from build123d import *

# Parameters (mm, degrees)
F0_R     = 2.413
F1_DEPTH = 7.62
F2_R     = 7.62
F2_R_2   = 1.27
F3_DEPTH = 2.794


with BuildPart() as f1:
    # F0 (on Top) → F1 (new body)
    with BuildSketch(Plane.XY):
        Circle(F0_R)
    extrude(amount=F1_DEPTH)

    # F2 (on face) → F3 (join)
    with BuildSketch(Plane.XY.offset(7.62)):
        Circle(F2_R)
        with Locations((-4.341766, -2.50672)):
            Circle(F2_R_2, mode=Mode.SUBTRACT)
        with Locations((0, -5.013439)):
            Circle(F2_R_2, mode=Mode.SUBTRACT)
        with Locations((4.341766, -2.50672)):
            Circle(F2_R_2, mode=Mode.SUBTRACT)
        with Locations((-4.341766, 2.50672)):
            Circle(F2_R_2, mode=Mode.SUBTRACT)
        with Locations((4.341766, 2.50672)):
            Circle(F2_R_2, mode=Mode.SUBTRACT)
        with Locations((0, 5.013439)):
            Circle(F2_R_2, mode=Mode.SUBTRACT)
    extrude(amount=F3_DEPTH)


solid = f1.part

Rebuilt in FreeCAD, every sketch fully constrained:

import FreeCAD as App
import Part
import Sketcher

V = App.Vector
Q = App.Units.Quantity

doc = App.newDocument("Part")
body = doc.addObject("PartDesign::Body", "Body")

# Sketch on XY plane
sketch1 = body.newObject("Sketcher::SketchObject", "Sketch")
sketch1.AttachmentSupport = (doc.getObject("XY_Plane"), [""])
sketch1.MapMode = "FlatFace"
sketch1.addGeometry(Part.Circle(V(0, 0, 0), V(0, 0, 1), 2.4), False)
sketch1.addConstraint(Sketcher.Constraint("Coincident", 0, 3, -1, 1))
sketch1.addConstraint(Sketcher.Constraint("Diameter", 0, Q("0.19 in")))
pad1 = body.newObject("PartDesign::Pad", "Pad")
pad1.Profile = sketch1
pad1.Length = Q("0.3 in")

# Sketch on XY plane
sketch2 = body.newObject("Sketcher::SketchObject", "Sketch001")
sketch2.AttachmentSupport = (doc.getObject("XY_Plane"), [""])
sketch2.MapMode = "FlatFace"
sketch2.AttachmentOffset = App.Placement(V(0, 0, 0.3 * 25.4), App.Rotation())
sketch2.addGeometry(Part.Circle(V(0, 0, 0), V(0, 0, 1), 7.6), False)
sketch2.addGeometry(Part.Circle(V(-4.3, -2.5, 0), V(0, 0, 1), 1.3), False)
sketch2.addGeometry(Part.Circle(V(0, -5, 0), V(0, 0, 1), 1.3), False)
sketch2.addGeometry(Part.Circle(V(4.3, -2.5, 0), V(0, 0, 1), 1.3), False)
sketch2.addGeometry(Part.Circle(V(-4.3, 2.5, 0), V(0, 0, 1), 1.3), False)
sketch2.addGeometry(Part.Circle(V(4.3, 2.5, 0), V(0, 0, 1), 1.3), False)
sketch2.addGeometry(Part.Circle(V(0, 5, 0), V(0, 0, 1), 1.3), False)
sketch2.addConstraint(Sketcher.Constraint("Coincident", 0, 3, -1, 1))
sketch2.addConstraint(Sketcher.Constraint("Equal", 1, 2))
sketch2.addConstraint(Sketcher.Constraint("Equal", 2, 3))
sketch2.addConstraint(Sketcher.Constraint("Equal", 3, 4))
sketch2.addConstraint(Sketcher.Constraint("Equal", 4, 5))
sketch2.addConstraint(Sketcher.Constraint("Equal", 5, 6))
sketch2.addConstraint(Sketcher.Constraint("Symmetric", 3, 3, 4, 3, -1, 1))
sketch2.addConstraint(Sketcher.Constraint("Symmetric", 1, 3, 5, 3, -1, 1))
sketch2.addConstraint(Sketcher.Constraint("Symmetric", 2, 3, 6, 3, -1, 1))
sketch2.addConstraint(Sketcher.Constraint("Symmetric", 1, 3, 3, 3, -2))
sketch2.addConstraint(Sketcher.Constraint("PointOnObject", 2, 3, -2))
sketch2.addConstraint(Sketcher.Constraint("Diameter", 0, Q("0.6 in")))
sketch2.addConstraint(Sketcher.Constraint("Diameter", 1, Q("0.1 in")))
sketch2.addConstraint(Sketcher.Constraint("DistanceY", 1, 3, -1, 1, Q("2.50672 mm")))
sketch2.addConstraint(Sketcher.Constraint("DistanceY", 2, 3, -1, 1, Q("5.013439 mm")))
sketch2.addConstraint(Sketcher.Constraint("DistanceX", 1, 3, -1, 1, Q("4.341766 mm")))
pad2 = body.newObject("PartDesign::Pad", "Pad001")
pad2.Profile = sketch2
pad2.Length = Q("0.11 in")

doc.recompute()
